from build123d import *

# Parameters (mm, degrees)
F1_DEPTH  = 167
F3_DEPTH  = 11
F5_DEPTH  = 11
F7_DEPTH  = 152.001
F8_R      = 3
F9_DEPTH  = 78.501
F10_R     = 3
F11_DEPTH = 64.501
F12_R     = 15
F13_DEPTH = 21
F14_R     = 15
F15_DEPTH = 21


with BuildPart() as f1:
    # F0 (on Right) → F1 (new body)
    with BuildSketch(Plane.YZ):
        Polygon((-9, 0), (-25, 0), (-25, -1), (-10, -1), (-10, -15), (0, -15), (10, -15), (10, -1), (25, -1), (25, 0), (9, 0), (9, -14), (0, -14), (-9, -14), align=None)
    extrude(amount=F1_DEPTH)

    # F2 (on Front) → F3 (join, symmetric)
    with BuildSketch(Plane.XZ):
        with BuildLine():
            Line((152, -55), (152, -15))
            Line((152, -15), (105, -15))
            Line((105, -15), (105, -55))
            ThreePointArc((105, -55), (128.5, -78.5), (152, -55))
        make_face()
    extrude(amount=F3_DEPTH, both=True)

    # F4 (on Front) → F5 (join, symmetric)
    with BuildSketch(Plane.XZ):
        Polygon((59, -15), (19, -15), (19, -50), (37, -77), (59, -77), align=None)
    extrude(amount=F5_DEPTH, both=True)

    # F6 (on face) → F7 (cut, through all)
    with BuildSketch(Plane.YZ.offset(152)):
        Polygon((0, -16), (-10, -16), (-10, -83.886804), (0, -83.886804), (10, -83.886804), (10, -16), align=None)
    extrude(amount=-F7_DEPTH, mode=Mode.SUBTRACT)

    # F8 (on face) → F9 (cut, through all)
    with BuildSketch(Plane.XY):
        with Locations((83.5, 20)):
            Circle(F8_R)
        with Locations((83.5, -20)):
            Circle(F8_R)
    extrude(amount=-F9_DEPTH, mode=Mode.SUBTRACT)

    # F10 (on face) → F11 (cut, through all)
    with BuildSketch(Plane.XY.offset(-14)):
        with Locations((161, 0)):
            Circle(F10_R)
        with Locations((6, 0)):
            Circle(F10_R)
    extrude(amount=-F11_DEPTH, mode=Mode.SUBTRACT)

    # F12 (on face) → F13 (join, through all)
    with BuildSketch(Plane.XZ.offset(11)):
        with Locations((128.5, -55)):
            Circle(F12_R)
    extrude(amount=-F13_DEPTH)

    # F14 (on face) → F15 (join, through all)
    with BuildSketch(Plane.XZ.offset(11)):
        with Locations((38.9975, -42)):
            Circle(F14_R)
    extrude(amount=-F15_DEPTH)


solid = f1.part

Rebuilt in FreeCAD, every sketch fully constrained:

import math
import FreeCAD as App
import Part
import Sketcher

doc = App.newDocument("Part")
body = doc.addObject("PartDesign::Body", "Body")

# Sketch on YZ plane
sketch1 = body.newObject("Sketcher::SketchObject", "Sketch")
sketch1.AttachmentSupport = (doc.getObject("YZ_Plane"), [""])
sketch1.MapMode = "FlatFace"
sketch1.addGeometry([
    Part.LineSegment(App.Vector(-9, 0, 0), App.Vector(-25, 0, 0)),  # 0
    Part.LineSegment(App.Vector(-25, 0, 0), App.Vector(-25, -1, 0)),  # 1
    Part.LineSegment(App.Vector(-25, -1, 0), App.Vector(-10, -1, 0)),  # 2
    Part.LineSegment(App.Vector(-10, -1, 0), App.Vector(-10, -15, 0)),  # 3
    Part.LineSegment(App.Vector(-10, -15, 0), App.Vector(10, -15, 0)),  # 4
    Part.LineSegment(App.Vector(10, -15, 0), App.Vector(10, -1, 0)),  # 5
    Part.LineSegment(App.Vector(10, -1, 0), App.Vector(25, -1, 0)),  # 6
    Part.LineSegment(App.Vector(25, -1, 0), App.Vector(25, 0, 0)),  # 7
    Part.LineSegment(App.Vector(25, 0, 0), App.Vector(9, 0, 0)),  # 8
    Part.LineSegment(App.Vector(9, 0, 0), App.Vector(9, -14, 0)),  # 9
    Part.LineSegment(App.Vector(9, -14, 0), App.Vector(-9, -14, 0)),  # 10
    Part.LineSegment(App.Vector(-9, -14, 0), App.Vector(-9, 0, 0)),  # 11
], False)
sketch1.addConstraint([
    Sketcher.Constraint("Coincident", 0, 2, 1, 1),
    Sketcher.Constraint("Coincident", 1, 2, 2, 1),
    Sketcher.Constraint("Coincident", 2, 2, 3, 1),
    Sketcher.Constraint("Coincident", 3, 2, 4, 1),
    Sketcher.Constraint("Coincident", 4, 2, 5, 1),
    Sketcher.Constraint("Coincident", 5, 2, 6, 1),
    Sketcher.Constraint("Coincident", 6, 2, 7, 1),
    Sketcher.Constraint("Coincident", 7, 2, 8, 1),
    Sketcher.Constraint("Coincident", 8, 2, 9, 1),
    Sketcher.Constraint("Coincident", 9, 2, 10, 1),
    Sketcher.Constraint("Coincident", 10, 2, 11, 1),
    Sketcher.Constraint("Coincident", 11, 2, 0, 1),
    Sketcher.Constraint("Horizontal", 0),
    Sketcher.Constraint("Vertical", 1),
    Sketcher.Constraint("Horizontal", 2),
    Sketcher.Constraint("Vertical", 3),
    Sketcher.Constraint("Horizontal", 4),
    Sketcher.Constraint("Vertical", 5),
    Sketcher.Constraint("Horizontal", 6),
    Sketcher.Constraint("Vertical", 7),
    Sketcher.Constraint("Horizontal", 8),
    Sketcher.Constraint("Vertical", 9),
    Sketcher.Constraint("Horizontal", 10),
    Sketcher.Constraint("Vertical", 11),
    Sketcher.Constraint("Symmetric", 0, 2, 7, 2, -1, 1),
    Sketcher.Constraint("Symmetric", 2, 2, 5, 2, -2),
    Sketcher.Constraint("Symmetric", 8, 2, 11, 2, -2),
    Sketcher.Constraint("Equal", 5, 9),
    Sketcher.Constraint("DistanceX", 0, 2, 0, 1, 16.0),
    Sketcher.Constraint("DistanceX", 2, 1, 2, 2, 15.0),
    Sketcher.Constraint("DistanceX", 4, 1, 4, 2, 20.0),
    Sketcher.Constraint("DistanceY", 1, 2, 1, 1, 1.0),
    Sketcher.Constraint("DistanceY", 3, 2, 3, 1, 14.0),
])
pad1 = body.newObject("PartDesign::Pad", "Pad")
pad1.Profile = sketch1
pad1.Length = 167

# Sketch on XZ plane
sketch2 = body.newObject("Sketcher::SketchObject", "Sketch001")
sketch2.AttachmentSupport = (doc.getObject("XZ_Plane"), [""])
sketch2.MapMode = "FlatFace"
sketch2.addGeometry([
    Part.LineSegment(App.Vector(152, -55, 0), App.Vector(152, -15, 0)),
    Part.LineSegment(App.Vector(152, -15, 0), App.Vector(105, -15, 0)),
    Part.LineSegment(App.Vector(105, -15, 0), App.Vector(105, -55, 0)),
    Part.ArcOfCircle(Part.Circle(App.Vector(128, -55, 0), App.Vector(0, 0, 1), 24), math.radians(180), math.radians(360)),
], False)
sketch2.addConstraint([
    Sketcher.Constraint("Coincident", 0, 2, 1, 1),
    Sketcher.Constraint("Coincident", 1, 2, 2, 1),
    Sketcher.Constraint("Tangent", 2, 2, 3, 1),
    Sketcher.Constraint("Tangent", 3, 2, 0, 1),
    Sketcher.Constraint("Vertical", 0),
    Sketcher.Constraint("Horizontal", 1),
    Sketcher.Constraint("Vertical", 2),
    Sketcher.Constraint("Radius", 3, 23.5),
    Sketcher.Constraint("DistanceY", 0, 1, 0, 2, 40.0),
    Sketcher.Constraint("DistanceY", 3, 3, -1, 1, 55.0),
    Sketcher.Constraint("DistanceX", -1, 1, 0, 2, 152.0),
])
pad2 = body.newObject("PartDesign::Pad", "Pad001")
pad2.Profile = sketch2
pad2.Length = 22
pad2.Midplane = True

# Sketch on XZ plane
sketch3 = body.newObject("Sketcher::SketchObject", "Sketch002")
sketch3.AttachmentSupport = (doc.getObject("XZ_Plane"), [""])
sketch3.MapMode = "FlatFace"
sketch3.addGeometry([
    Part.LineSegment(App.Vector(59, -15, 0), App.Vector(19, -15, 0)),  # 0
    Part.LineSegment(App.Vector(19, -15, 0), App.Vector(19, -50, 0)),  # 1
    Part.LineSegment(App.Vector(19, -50, 0), App.Vector(37, -77, 0)),  # 2
    Part.LineSegment(App.Vector(37, -77, 0), App.Vector(59, -77, 0)),  # 3
    Part.LineSegment(App.Vector(59, -77, 0), App.Vector(59, -15, 0)),  # 4
], False)
sketch3.addConstraint([
    Sketcher.Constraint("Coincident", 0, 2, 1, 1),
    Sketcher.Constraint("Coincident", 1, 2, 2, 1),
    Sketcher.Constraint("Coincident", 2, 2, 3, 1),
    Sketcher.Constraint("Coincident", 3, 2, 4, 1),
    Sketcher.Constraint("Coincident", 4, 2, 0, 1),
    Sketcher.Constraint("Horizontal", 0),
    Sketcher.Constraint("Vertical", 1),
    Sketcher.Constraint("Horizontal", 3),
    Sketcher.Constraint("Vertical", 4),
    Sketcher.Constraint("DistanceX", 0, 2, 0, 1, 40.0),
    Sketcher.Constraint("DistanceX", 3, 1, 3, 2, 22.0),
    Sketcher.Constraint("DistanceY", 1, 2, 1, 1, 35.0),
    Sketcher.Constraint("DistanceY", 4, 1, 4, 2, 62.0),
    Sketcher.Constraint("DistanceX", -1, 1, 0, 2, 19.0),
    Sketcher.Constraint("DistanceY", 0, 2, -1, 1, 15.0),
])
pad3 = body.newObject("PartDesign::Pad", "Pad002")
pad3.Profile = sketch3
pad3.Length = 22
pad3.Midplane = True

# Sketch on YZ plane
sketch4 = body.newObject("Sketcher::SketchObject", "Sketch003")
sketch4.AttachmentSupport = (doc.getObject("YZ_Plane"), [""])
sketch4.MapMode = "FlatFace"
sketch4.AttachmentOffset = App.Placement(App.Vector(0, 0, 152), App.Rotation())
sketch4.addGeometry([
    Part.LineSegment(App.Vector(-10, -16, 0), App.Vector(-10, -84, 0)),
    Part.LineSegment(App.Vector(-10, -84, 0), App.Vector(10, -84, 0)),
    Part.LineSegment(App.Vector(10, -84, 0), App.Vector(10, -16, 0)),
    Part.LineSegment(App.Vector(10, -16, 0), App.Vector(-10, -16, 0)),
], False)
sketch4.addConstraint([
    Sketcher.Constraint("Coincident", 0, 2, 1, 1),
    Sketcher.Constraint("Coincident", 1, 2, 2, 1),
    Sketcher.Constraint("Coincident", 2, 2, 3, 1),
    Sketcher.Constraint("Coincident", 3, 2, 0, 1),
    Sketcher.Constraint("Vertical", 0),
    Sketcher.Constraint("Horizontal", 1),
    Sketcher.Constraint("Vertical", 2),
    Sketcher.Constraint("Horizontal", 3),
    Sketcher.Constraint("DistanceX", 1, 1, 1, 2, 20.0),
    Sketcher.Constraint("DistanceX", 0, 2, -1, 1, 10.0),
    Sketcher.Constraint("DistanceY", 2, 2, -1, 1, 16.0),
    Sketcher.Constraint("DistanceY", 0, 2, 0, 1, 67.886804),
])
pocket1 = body.newObject("PartDesign::Pocket", "Pocket")
pocket1.Profile = sketch4
pocket1.Type = "ThroughAll"

# Sketch on XY plane
sketch5 = body.newObject("Sketcher::SketchObject", "Sketch004")
sketch5.AttachmentSupport = (doc.getObject("XY_Plane"), [""])
sketch5.MapMode = "FlatFace"
sketch5.addGeometry([
    Part.Circle(App.Vector(83.5, 20, 0), App.Vector(0, 0, 1), 3),
    Part.Circle(App.Vector(83.5, -20, 0), App.Vector(0, 0, 1), 3),
], False)
sketch5.addConstraint([
    Sketcher.Constraint("Equal", 0, 1),
    Sketcher.Constraint("Symmetric", 0, 3, 1, 3, -1),
    Sketcher.Constraint("Diameter", 0, 6.0),
    Sketcher.Constraint("DistanceY", -1, 1, 0, 3, 20.0),
    Sketcher.Constraint("DistanceX", -1, 1, 0, 3, 83.5),
])
pocket2 = body.newObject("PartDesign::Pocket", "Pocket001")
pocket2.Profile = sketch5
pocket2.Type = "ThroughAll"

# Sketch on XY plane
sketch6 = body.newObject("Sketcher::SketchObject", "Sketch005")
sketch6.AttachmentSupport = (doc.getObject("XY_Plane"), [""])
sketch6.MapMode = "FlatFace"
sketch6.AttachmentOffset = App.Placement(App.Vector(0, 0, -14), App.Rotation())
sketch6.addGeometry([
    Part.Circle(App.Vector(161, 0, 0), App.Vector(0, 0, 1), 3),
    Part.Circle(App.Vector(6, 0, 0), App.Vector(0, 0, 1), 3),
], False)
sketch6.addConstraint([
    Sketcher.Constraint("Equal", 0, 1),
    Sketcher.Constraint("PointOnObject", 0, 3, -1),
    Sketcher.Constraint("PointOnObject", 1, 3, -1),
    Sketcher.Constraint("Diameter", 0, 6.0),
    Sketcher.Constraint("DistanceX", -1, 1, 0, 3, 161.0),
    Sketcher.Constraint("DistanceX", -1, 1, 1, 3, 6.0),
])
pocket3 = body.newObject("PartDesign::Pocket", "Pocket002")
pocket3.Profile = sketch6
pocket3.Type = "ThroughAll"

# Sketch on XZ plane
sketch7 = body.newObject("Sketcher::SketchObject", "Sketch006")
sketch7.AttachmentSupport = (doc.getObject("XZ_Plane"), [""])
sketch7.MapMode = "FlatFace"
sketch7.AttachmentOffset = App.Placement(App.Vector(0, 0, 11), App.Rotation())
sketch7.addGeometry(Part.Circle(App.Vector(128, -55, 0), App.Vector(0, 0, 1), 15), False)
sketch7.addConstraint([
    Sketcher.Constraint("Diameter", 0, 30.0),
    Sketcher.Constraint("DistanceY", 0, 3, -1, 1, 55.0),
    Sketcher.Constraint("DistanceX", -1, 1, 0, 3, 128.5),
])
pad4 = body.newObject("PartDesign::Pad", "Pad003")
pad4.Profile = sketch7
pad4.Type = "UpToLast"
pad4.Reversed = True

# Sketch on XZ plane
sketch8 = body.newObject("Sketcher::SketchObject", "Sketch007")
sketch8.AttachmentSupport = (doc.getObject("XZ_Plane"), [""])
sketch8.MapMode = "FlatFace"
sketch8.AttachmentOffset = App.Placement(App.Vector(0, 0, 11), App.Rotation())
sketch8.addGeometry(Part.Circle(App.Vector(39, -42, 0), App.Vector(0, 0, 1), 15), False)
sketch8.addConstraint([
    Sketcher.Constraint("Diameter", 0, 30.0),
    Sketcher.Constraint("DistanceY", 0, 3, -1, 1, 42.0),
    Sketcher.Constraint("DistanceX", -1, 1, 0, 3, 38.9975),
])
pad5 = body.newObject("PartDesign::Pad", "Pad004")
pad5.Profile = sketch8
pad5.Type = "UpToLast"
pad5.Reversed = True

doc.recompute()
